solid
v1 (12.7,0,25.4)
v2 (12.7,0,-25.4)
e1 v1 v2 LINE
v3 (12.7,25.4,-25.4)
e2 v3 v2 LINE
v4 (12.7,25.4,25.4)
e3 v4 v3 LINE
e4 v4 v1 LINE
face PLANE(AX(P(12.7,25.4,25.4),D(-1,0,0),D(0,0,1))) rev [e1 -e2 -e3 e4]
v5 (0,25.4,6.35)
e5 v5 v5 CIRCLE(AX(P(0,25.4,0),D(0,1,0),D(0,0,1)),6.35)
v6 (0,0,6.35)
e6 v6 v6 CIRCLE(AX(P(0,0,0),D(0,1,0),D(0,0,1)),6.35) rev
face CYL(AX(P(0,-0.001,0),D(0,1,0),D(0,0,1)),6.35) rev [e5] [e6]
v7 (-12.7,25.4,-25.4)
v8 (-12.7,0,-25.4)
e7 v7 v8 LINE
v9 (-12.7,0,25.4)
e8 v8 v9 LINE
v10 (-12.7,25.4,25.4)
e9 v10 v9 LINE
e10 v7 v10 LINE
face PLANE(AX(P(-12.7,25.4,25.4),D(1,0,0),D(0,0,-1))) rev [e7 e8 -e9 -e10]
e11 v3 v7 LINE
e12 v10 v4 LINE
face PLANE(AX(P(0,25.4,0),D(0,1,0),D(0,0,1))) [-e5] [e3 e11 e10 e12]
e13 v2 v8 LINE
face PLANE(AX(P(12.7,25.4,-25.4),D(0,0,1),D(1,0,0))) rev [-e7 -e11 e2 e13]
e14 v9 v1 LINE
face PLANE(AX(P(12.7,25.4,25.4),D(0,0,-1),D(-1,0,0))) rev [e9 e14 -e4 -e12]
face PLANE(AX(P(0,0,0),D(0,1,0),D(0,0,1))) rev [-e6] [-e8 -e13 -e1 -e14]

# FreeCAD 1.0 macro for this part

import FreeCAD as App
import Part
import Sketcher

V = App.Vector
Q = App.Units.Quantity

doc = App.newDocument("Part")
params = doc.addObject("Spreadsheet::Sheet", "Params")
for row, (alias, value) in enumerate([
    ("sketch1_width", "1 in"),
    ("sketch1_height", "2 in"),
    ("pad1_length", "1 in"),
    ("sketch2_diameter", "0.5 in"),
], start=1):
    params.set(f"A{row}", alias)
    params.set(f"B{row}", "=" + value)
    params.setAlias(f"B{row}", alias)

body = doc.addObject("PartDesign::Body", "Body")

# Sketch on XZ plane
sketch1 = body.newObject("Sketcher::SketchObject", "Sketch")
sketch1.AttachmentSupport = (doc.getObject("XZ_Plane"), [""])
sketch1.MapMode = "FlatFace"
sketch1.addGeometry([
    Part.LineSegment(V(-12.7, -25.4, 0), V(-12.7, 25.4, 0)),
    Part.LineSegment(V(-12.7, 25.4, 0), V(12.7, 25.4, 0)),
    Part.LineSegment(V(12.7, 25.4, 0), V(12.7, -25.4, 0)),
    Part.LineSegment(V(12.7, -25.4, 0), V(-12.7, -25.4, 0)),
], False)
sketch1.addConstraint([
    Sketcher.Constraint("Coincident", 0, 2, 1, 1),
    Sketcher.Constraint("Coincident", 1, 2, 2, 1),
    Sketcher.Constraint("Coincident", 2, 2, 3, 1),
    Sketcher.Constraint("Coincident", 3, 2, 0, 1),
    Sketcher.Constraint("Vertical", 0),
    Sketcher.Constraint("Horizontal", 1),
    Sketcher.Constraint("Vertical", 2),
    Sketcher.Constraint("Horizontal", 3),
    Sketcher.Constraint("Symmetric", 0, 2, 2, 2, -1, 1),
    Sketcher.Constraint("DistanceX", 1, 1, 1, 2, Q("1 in")),
    Sketcher.Constraint("DistanceY", 0, 1, 0, 2, Q("2 in")),
])
sketch1.setExpression("Constraints[9]", "Params.sketch1_width")
sketch1.setExpression("Constraints[10]", "Params.sketch1_height")
pad1 = body.newObject("PartDesign::Pad", "Pad")
pad1.Profile = sketch1
pad1.setExpression("Length", "Params.pad1_length")
pad1.Reversed = True

# Sketch on XZ plane
sketch2 = body.newObject("Sketcher::SketchObject", "Sketch001")
sketch2.AttachmentSupport = (doc.getObject("XZ_Plane"), [""])
sketch2.MapMode = "FlatFace"
sketch2.AttachmentOffset = App.Placement(V(0, 0, -1 * 25.4), App.Rotation())
sketch2.addGeometry(Part.Circle(V(0, 0, 0), V(0, 0, 1), 6.35), False)
sketch2.addConstraint([
    Sketcher.Constraint("Coincident", 0, 3, -1, 1),
    Sketcher.Constraint("Diameter", 0, Q("0.5 in")),
])
sketch2.setExpression("Constraints[1]", "Params.sketch2_diameter")
pocket1 = body.newObject("PartDesign::Pocket", "Pocket")
pocket1.Profile = sketch2
pocket1.Type = "UpToFirst"
pocket1.Reversed = True

doc.recompute()
